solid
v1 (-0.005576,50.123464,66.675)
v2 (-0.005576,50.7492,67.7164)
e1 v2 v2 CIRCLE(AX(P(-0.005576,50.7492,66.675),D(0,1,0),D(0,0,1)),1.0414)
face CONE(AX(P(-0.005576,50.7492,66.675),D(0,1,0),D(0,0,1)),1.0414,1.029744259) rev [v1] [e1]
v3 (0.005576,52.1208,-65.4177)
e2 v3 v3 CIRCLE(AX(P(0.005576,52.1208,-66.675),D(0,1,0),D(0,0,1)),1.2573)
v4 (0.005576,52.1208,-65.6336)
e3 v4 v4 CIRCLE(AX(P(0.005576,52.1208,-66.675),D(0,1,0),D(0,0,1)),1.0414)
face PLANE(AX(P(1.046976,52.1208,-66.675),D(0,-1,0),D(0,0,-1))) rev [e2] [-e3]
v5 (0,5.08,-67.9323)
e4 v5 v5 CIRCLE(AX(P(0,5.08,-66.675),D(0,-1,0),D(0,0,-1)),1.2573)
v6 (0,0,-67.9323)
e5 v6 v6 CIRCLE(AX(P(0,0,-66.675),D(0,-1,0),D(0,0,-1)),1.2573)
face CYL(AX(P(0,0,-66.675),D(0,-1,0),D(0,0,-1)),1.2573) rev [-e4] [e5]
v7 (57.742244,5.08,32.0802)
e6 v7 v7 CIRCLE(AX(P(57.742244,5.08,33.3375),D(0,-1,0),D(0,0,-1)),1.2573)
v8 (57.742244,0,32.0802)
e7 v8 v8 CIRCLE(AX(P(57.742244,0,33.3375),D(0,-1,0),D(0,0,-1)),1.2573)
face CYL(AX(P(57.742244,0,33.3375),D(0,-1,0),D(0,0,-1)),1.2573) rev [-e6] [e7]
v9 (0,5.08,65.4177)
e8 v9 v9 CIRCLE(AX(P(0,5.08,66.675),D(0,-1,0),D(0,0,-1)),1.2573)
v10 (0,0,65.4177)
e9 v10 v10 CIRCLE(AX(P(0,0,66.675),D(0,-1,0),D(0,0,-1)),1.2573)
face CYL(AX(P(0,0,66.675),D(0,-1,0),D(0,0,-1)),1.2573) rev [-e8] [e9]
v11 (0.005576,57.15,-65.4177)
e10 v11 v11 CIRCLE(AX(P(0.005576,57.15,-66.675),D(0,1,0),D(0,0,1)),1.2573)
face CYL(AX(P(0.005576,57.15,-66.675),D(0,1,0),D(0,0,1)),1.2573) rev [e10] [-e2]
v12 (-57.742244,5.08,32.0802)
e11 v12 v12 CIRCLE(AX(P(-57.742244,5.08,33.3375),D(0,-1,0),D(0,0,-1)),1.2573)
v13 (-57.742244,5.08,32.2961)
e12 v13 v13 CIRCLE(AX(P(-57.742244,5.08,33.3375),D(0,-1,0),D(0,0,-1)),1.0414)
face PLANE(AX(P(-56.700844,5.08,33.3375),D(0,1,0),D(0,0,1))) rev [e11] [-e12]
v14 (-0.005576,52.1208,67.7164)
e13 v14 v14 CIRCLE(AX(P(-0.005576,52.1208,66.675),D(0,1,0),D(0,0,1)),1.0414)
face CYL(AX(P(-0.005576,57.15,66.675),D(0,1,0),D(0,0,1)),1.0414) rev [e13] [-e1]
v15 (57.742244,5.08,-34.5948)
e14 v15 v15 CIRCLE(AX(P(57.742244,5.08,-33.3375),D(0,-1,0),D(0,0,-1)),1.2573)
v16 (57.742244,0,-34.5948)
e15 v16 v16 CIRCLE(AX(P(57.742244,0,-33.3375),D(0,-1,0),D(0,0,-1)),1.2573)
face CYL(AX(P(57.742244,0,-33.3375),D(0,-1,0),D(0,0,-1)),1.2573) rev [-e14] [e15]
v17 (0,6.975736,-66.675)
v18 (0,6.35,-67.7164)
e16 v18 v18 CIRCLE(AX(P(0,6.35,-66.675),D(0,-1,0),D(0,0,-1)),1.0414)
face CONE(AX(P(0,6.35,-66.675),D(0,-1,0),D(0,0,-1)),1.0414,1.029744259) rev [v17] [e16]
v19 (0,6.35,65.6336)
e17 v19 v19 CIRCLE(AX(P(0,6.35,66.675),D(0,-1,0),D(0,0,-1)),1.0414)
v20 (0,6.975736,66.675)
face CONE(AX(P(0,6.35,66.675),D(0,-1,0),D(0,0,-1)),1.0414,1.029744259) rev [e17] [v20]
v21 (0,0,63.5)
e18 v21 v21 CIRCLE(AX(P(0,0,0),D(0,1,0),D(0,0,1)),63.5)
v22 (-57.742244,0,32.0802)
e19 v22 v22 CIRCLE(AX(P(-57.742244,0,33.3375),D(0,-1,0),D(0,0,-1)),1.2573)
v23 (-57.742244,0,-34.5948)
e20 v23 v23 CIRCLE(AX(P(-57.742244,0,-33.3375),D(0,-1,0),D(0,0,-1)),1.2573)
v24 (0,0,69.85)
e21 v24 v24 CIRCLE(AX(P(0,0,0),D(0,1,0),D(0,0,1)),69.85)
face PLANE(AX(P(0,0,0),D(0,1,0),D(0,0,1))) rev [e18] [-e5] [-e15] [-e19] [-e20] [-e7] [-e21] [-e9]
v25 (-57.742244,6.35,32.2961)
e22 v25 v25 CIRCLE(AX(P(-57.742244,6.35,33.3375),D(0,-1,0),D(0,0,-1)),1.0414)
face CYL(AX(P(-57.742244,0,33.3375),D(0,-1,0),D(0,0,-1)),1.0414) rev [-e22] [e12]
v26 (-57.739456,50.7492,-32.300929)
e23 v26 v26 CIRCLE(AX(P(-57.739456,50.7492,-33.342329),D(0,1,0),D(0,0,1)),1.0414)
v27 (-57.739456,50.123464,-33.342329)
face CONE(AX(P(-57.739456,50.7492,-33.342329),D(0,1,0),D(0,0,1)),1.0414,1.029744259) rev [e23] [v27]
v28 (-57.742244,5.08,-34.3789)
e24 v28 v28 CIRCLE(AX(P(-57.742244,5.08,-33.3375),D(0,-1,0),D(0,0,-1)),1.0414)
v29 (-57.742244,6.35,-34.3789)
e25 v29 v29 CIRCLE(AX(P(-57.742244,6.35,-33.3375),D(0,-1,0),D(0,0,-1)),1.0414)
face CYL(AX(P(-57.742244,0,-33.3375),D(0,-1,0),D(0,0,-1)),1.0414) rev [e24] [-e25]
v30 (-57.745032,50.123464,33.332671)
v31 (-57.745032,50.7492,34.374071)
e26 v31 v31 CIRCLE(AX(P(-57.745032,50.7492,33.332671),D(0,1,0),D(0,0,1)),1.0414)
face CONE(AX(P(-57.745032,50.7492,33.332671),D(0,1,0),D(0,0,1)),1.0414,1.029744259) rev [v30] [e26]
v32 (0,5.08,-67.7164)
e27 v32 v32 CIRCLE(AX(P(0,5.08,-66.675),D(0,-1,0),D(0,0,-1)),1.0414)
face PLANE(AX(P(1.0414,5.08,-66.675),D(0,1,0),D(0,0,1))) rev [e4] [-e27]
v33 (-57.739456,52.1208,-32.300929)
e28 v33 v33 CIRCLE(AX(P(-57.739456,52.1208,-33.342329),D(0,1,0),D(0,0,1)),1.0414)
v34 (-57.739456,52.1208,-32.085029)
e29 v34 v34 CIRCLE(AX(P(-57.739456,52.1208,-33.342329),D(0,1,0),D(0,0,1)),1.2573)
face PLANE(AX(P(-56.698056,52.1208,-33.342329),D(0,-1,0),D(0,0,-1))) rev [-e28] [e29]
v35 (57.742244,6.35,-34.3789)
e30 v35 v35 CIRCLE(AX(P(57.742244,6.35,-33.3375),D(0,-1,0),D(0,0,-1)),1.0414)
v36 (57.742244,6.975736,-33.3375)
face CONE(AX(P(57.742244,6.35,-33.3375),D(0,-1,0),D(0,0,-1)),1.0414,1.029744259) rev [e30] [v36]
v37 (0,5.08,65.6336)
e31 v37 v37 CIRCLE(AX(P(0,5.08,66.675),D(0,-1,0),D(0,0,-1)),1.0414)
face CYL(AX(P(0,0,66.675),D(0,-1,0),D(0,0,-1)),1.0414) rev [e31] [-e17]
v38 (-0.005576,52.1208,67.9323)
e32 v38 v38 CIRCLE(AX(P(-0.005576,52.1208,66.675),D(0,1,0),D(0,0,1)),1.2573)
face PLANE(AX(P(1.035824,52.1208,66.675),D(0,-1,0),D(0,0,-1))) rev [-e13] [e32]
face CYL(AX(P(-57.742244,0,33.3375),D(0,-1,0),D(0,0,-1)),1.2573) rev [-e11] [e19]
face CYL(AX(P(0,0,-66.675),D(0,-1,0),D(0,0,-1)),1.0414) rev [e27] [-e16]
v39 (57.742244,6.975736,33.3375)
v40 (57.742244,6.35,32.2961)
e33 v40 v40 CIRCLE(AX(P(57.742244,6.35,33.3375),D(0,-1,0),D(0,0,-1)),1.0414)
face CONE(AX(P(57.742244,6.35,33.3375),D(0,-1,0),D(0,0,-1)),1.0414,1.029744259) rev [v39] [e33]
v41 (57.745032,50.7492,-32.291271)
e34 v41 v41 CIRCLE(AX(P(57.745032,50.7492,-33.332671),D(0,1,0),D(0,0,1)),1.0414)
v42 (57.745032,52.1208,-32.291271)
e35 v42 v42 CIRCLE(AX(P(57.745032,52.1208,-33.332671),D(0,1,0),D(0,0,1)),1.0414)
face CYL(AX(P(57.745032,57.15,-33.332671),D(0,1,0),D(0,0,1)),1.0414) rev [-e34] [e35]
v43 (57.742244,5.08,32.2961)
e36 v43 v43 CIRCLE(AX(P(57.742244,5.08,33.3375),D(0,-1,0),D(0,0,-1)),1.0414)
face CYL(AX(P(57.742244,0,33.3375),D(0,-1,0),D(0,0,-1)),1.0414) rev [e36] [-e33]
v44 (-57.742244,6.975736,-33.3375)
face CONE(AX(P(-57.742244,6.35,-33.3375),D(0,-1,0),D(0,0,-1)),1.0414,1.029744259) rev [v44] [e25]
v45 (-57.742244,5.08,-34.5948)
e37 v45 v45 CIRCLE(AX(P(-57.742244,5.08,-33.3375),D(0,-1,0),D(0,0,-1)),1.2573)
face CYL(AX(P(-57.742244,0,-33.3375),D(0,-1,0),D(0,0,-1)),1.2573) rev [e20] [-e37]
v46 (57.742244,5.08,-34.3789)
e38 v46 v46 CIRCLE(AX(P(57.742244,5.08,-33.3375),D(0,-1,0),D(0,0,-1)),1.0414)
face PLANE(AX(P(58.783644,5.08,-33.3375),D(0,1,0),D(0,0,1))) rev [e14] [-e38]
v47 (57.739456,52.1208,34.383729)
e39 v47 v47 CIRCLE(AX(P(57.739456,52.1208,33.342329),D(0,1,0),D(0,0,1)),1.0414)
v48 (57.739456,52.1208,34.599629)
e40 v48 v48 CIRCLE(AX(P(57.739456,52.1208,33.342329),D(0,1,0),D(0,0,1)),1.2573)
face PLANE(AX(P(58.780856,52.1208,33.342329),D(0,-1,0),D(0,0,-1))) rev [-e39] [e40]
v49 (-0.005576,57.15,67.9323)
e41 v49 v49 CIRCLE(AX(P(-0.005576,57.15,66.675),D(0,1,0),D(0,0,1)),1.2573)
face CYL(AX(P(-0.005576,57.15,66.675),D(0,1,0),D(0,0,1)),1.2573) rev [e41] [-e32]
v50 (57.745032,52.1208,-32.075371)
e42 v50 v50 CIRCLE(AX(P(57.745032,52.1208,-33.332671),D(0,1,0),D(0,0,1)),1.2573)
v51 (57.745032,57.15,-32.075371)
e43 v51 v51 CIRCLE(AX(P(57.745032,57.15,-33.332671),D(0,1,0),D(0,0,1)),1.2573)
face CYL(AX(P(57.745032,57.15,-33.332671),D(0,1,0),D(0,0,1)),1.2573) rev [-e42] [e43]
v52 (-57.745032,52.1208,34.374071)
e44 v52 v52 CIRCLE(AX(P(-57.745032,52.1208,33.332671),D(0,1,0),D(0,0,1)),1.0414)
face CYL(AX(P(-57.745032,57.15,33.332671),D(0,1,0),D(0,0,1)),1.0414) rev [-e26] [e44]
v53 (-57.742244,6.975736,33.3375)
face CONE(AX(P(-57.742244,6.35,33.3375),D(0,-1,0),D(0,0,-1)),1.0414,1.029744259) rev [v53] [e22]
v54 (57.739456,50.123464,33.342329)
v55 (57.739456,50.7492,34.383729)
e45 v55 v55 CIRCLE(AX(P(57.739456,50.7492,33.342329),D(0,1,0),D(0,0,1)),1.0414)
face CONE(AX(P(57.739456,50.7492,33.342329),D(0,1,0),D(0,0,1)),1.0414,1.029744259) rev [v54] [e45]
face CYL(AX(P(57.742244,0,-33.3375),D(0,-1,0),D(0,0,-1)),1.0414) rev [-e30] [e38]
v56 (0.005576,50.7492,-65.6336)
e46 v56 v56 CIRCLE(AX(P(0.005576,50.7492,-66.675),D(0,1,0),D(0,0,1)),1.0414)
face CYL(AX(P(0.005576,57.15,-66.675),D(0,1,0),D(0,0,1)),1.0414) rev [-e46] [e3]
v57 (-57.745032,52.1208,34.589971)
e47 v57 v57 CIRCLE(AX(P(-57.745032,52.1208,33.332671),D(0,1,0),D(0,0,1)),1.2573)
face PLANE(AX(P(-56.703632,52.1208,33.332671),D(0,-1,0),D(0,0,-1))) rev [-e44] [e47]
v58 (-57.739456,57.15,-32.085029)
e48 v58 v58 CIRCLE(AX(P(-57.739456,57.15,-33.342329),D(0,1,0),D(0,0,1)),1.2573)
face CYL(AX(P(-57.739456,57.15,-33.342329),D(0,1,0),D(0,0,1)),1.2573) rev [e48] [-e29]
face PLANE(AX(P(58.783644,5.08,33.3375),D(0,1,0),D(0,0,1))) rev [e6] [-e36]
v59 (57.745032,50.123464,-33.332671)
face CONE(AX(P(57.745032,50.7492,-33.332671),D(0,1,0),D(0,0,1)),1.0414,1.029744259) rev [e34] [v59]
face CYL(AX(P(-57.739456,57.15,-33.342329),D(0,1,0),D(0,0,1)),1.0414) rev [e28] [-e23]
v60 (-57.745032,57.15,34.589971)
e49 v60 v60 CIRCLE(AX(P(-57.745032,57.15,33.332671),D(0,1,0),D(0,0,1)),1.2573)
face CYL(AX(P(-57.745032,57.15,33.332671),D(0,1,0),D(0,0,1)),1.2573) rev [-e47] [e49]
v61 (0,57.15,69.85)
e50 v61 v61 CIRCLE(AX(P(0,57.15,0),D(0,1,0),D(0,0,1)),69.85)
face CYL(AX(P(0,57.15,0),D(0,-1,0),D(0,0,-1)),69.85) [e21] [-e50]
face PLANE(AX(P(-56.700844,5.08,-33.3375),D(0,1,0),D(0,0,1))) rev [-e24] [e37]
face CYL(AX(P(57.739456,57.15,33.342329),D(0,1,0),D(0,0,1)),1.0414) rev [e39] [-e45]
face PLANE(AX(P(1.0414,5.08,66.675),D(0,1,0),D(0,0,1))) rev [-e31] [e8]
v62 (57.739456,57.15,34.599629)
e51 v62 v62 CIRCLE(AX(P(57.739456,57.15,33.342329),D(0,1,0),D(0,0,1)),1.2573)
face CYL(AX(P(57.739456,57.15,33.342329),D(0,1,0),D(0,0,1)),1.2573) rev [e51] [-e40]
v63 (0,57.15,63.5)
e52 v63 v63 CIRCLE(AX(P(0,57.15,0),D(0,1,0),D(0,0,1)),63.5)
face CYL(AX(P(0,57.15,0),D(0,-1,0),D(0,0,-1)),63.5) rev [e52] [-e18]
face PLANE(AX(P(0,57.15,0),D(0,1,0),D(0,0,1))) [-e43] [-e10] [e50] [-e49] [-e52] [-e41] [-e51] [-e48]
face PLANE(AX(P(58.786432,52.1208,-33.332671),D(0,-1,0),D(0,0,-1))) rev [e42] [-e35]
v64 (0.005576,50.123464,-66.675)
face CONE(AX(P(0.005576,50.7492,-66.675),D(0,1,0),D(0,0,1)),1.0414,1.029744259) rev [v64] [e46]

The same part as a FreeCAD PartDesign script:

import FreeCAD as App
import Part
import Sketcher

V = App.Vector
Q = App.Units.Quantity


def add_polygon(sketch, points):
    """Adds a closed chain of lines whose ends are joined by coincident constraints."""
    first, n = sketch.GeometryCount, len(points)
    for a, b in zip(points, points[1:] + points[:1]):
        sketch.addGeometry(Part.LineSegment(App.Vector(*a, 0), App.Vector(*b, 0)), False)
    for i in range(n):
        sketch.addConstraint(Sketcher.Constraint("Coincident", first + i, 2, first + (i + 1) % n, 1))

doc = App.newDocument("Part")
params = doc.addObject("Spreadsheet::Sheet", "Params")
for row, (alias, value) in enumerate([
    ("sketch1_diameter", "5 in"),
    ("sketch1_diameter2", "5.5 in"),
    ("pad1_length", "2.25 in"),
    ("sketch2_width", "0.2 in"),
    ("sketch2_width2", "0.05 in"),
    ("groove_angle", "360 deg"),
    ("sketch3_width", "0.198 in"),
    ("sketch3_width2", "0.054 in"),
    ("groove2_angle", "360 deg"),
], start=1):
    params.set(f"A{row}", alias)
    params.set(f"B{row}", "=" + value)
    params.setAlias(f"B{row}", alias)

body = doc.addObject("PartDesign::Body", "Body")

# Sketch on XZ plane
sketch1 = body.newObject("Sketcher::SketchObject", "Sketch")
sketch1.AttachmentSupport = (doc.getObject("XZ_Plane"), [""])
sketch1.MapMode = "FlatFace"
sketch1.addGeometry([
    Part.Circle(V(0, 0, 0), V(0, 0, 1), 70),
    Part.Circle(V(0, 0, 0), V(0, 0, 1), 64),
], False)
sketch1.addConstraint([
    Sketcher.Constraint("Coincident", 0, 3, -1, 1),
    Sketcher.Constraint("Coincident", 1, 3, -1, 1),
    Sketcher.Constraint("Diameter", 1, Q("5 in")),
    Sketcher.Constraint("Diameter", 0, Q("5.5 in")),
])
sketch1.setExpression("Constraints[2]", "Params.sketch1_diameter")
sketch1.setExpression("Constraints[3]", "Params.sketch1_diameter2")
pad1 = body.newObject("PartDesign::Pad", "Pad")
pad1.Profile = sketch1
pad1.setExpression("Length", "Params.pad1_length")
pad1.Reversed = True

# Sketch on YZ plane
sketch2 = body.newObject("Sketcher::SketchObject", "Sketch001")
sketch2.AttachmentSupport = (doc.getObject("YZ_Plane"), [""])
sketch2.MapMode = "FlatFace"
add_polygon(sketch2, [(6.98, 66.67), (0, 66.67), (0, 65.42), (5.08, 65.42), (5.08, 65.63), (6.35, 65.63)])  # lines 0-5
sketch2.addGeometry(Part.LineSegment(V(0, 66.67, 0), V(6.98, 66.67, 0)), True)  # axis
sketch2.addConstraint([
    Sketcher.Constraint("Horizontal", 0),
    Sketcher.Constraint("Vertical", 1),
    Sketcher.Constraint("Horizontal", 2),
    Sketcher.Constraint("Vertical", 3),
    Sketcher.Constraint("Horizontal", 4),
    Sketcher.Constraint("Horizontal", 6),
    Sketcher.Constraint("Coincident", 6, 1, 0, 2),
    Sketcher.Constraint("PointOnObject", 0, 2, -2),
    Sketcher.Constraint("Equal", 0, 6),
    Sketcher.Constraint("DistanceX", 2, 1, 2, 2, Q("0.2 in")),
    Sketcher.Constraint("Angle", 5, Q("59 deg")),
    Sketcher.Constraint("DistanceX", 4, 1, 4, 2, Q("0.05 in")),
    Sketcher.Constraint("DistanceY", 1, 2, 1, 1, Q("0.0495 in")),
    Sketcher.Constraint("DistanceY", 3, 1, 3, 2, Q("0.0085 in")),
    Sketcher.Constraint("DistanceY", -1, 1, 0, 2, Q("2.625 in")),
])
sketch2.setExpression("Constraints[15]", "Params.sketch2_width")
sketch2.setExpression("Constraints[17]", "Params.sketch2_width2")
groove = body.newObject("PartDesign::Groove", "Groove")
groove.Profile = sketch2
groove.ReferenceAxis = (sketch2, ["Axis0"])
groove.setExpression("Angle", "Params.groove_angle")
doc.recompute()

polarpattern = body.newObject("PartDesign::PolarPattern", "PolarPattern")
polarpattern.Originals = [groove]
polarpattern.Axis = (doc.getObject("Y_Axis"), [""])
polarpattern.Angle = 360
polarpattern.Occurrences = 6
body.Tip = polarpattern

# Sketch on YZ plane
sketch3 = body.newObject("Sketcher::SketchObject", "Sketch002")
sketch3.AttachmentSupport = (doc.getObject("YZ_Plane"), [""])
sketch3.MapMode = "FlatFace"
sketch3.AttachmentOffset = App.Placement(V(0, 0, 0.005576), App.Rotation())
add_polygon(sketch3, [(50.12, -66.67), (57.15, -66.67), (57.15, -65.42), (52.12, -65.42), (52.12, -65.63), (50.75, -65.63)])  # lines 0-5
sketch3.addGeometry(Part.LineSegment(V(57.15, -66.67, 0), V(50.12, -66.67, 0)), True)  # axis
sketch3.addConstraint([
    Sketcher.Constraint("Horizontal", 0),
    Sketcher.Constraint("Vertical", 1),
    Sketcher.Constraint("Horizontal", 2),
    Sketcher.Constraint("Vertical", 3),
    Sketcher.Constraint("Horizontal", 4),
    Sketcher.Constraint("Horizontal", 6),
    Sketcher.Constraint("Coincident", 6, 1, 0, 2),
    Sketcher.Constraint("Equal", 0, 6),
    Sketcher.Constraint("Angle", 5, Q("-121 deg")),
    Sketcher.Constraint("DistanceX", 2, 2, 2, 1, Q("0.198 in")),
    Sketcher.Constraint("DistanceX", 4, 2, 4, 1, Q("0.054 in")),
    Sketcher.Constraint("DistanceX", -1, 1, 0, 2, Q("2.25 in")),
    Sketcher.Constraint("DistanceY", 1, 1, 1, 2, Q("0.0495 in")),
    Sketcher.Constraint("DistanceY", 3, 2, 3, 1, Q("0.0085 in")),
    Sketcher.Constraint("DistanceY", 0, 2, -1, 1, Q("2.625 in")),
])
sketch3.setExpression("Constraints[15]", "Params.sketch3_width")
sketch3.setExpression("Constraints[16]", "Params.sketch3_width2")
groove2 = body.newObject("PartDesign::Groove", "Groove001")
groove2.Profile = sketch3
groove2.ReferenceAxis = (sketch3, ["Axis0"])
groove2.setExpression("Angle", "Params.groove2_angle")
doc.recompute()

polarpattern2 = body.newObject("PartDesign::PolarPattern", "PolarPattern001")
polarpattern2.Originals = [groove2]
polarpattern2.Axis = (doc.getObject("Y_Axis"), [""])
polarpattern2.Angle = 360
polarpattern2.Occurrences = 6
body.Tip = polarpattern2

doc.recompute()
